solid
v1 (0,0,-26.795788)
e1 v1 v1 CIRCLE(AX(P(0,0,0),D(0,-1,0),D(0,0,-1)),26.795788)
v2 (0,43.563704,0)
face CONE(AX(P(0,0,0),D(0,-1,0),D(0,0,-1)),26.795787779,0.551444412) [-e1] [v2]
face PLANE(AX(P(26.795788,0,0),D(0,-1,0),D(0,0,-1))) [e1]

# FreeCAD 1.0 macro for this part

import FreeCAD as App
import Part
import Sketcher
Q = App.Units.Quantity


def add_polygon(sketch, points):
    """Adds a closed chain of lines whose ends are joined by coincident constraints."""
    first, n = sketch.GeometryCount, len(points)
    for a, b in zip(points, points[1:] + points[:1]):
        sketch.addGeometry(Part.LineSegment(App.Vector(*a, 0), App.Vector(*b, 0)), False)
    for i in range(n):
        sketch.addConstraint(Sketcher.Constraint("Coincident", first + i, 2, first + (i + 1) % n, 1))

doc = App.newDocument("Part")
body = doc.addObject("PartDesign::Body", "Body")

# Sketch on XY plane
sketch1 = doc.addObject("Sketcher::SketchObject", "Sketch")
body.addObject(sketch1)
sketch1.AttachmentSupport = (doc.XY_Plane, [""])
sketch1.MapMode = "FlatFace"
add_polygon(sketch1, [(0, 44), (0, 0), (27, 0)])  # lines 0-2
sketch1.addConstraint(Sketcher.Constraint("Vertical", 0))
sketch1.addConstraint(Sketcher.Constraint("Horizontal", 1))
sketch1.addConstraint(Sketcher.Constraint("Coincident", 0, 2, -1, 1))
sketch1.addConstraint(Sketcher.Constraint("DistanceX", 1, 1, 1, 2, Q("26.795788 mm")))
sketch1.addConstraint(Sketcher.Constraint("DistanceY", 0, 2, 0, 1, Q("43.563704 mm")))
revolution = doc.addObject("PartDesign::Revolution", "Revolution")
body.addObject(revolution)
revolution.Profile = sketch1
revolution.ReferenceAxis = (sketch1, ["V_Axis"])
revolution.Angle = 360

doc.recompute()
